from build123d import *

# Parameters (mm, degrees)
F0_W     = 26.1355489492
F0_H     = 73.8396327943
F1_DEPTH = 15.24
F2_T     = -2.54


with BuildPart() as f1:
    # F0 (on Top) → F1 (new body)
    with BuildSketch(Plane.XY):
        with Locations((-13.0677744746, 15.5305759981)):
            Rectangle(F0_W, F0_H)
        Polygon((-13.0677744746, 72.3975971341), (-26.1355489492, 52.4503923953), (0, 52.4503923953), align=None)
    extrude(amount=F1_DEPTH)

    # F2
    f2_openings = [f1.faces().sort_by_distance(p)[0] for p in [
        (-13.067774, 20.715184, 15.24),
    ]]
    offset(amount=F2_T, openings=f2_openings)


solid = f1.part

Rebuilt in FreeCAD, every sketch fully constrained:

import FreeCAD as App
import Part
import Sketcher
Q = App.Units.Quantity


def faces_at(feature, points):
    """Names of the faces that lie closest to the given points."""
    faces = feature.Shape.Faces
    near = lambda p: min(range(len(faces)), key=lambda i: faces[i].distToShape(Part.Vertex(*p))[0])
    return sorted({f"Face{near(p) + 1}" for p in points})

doc = App.newDocument("Part")
body = doc.addObject("PartDesign::Body", "Body")

# Sketch on XY plane
sketch1 = body.newObject("Sketcher::SketchObject", "Sketch")
sketch1.AttachmentSupport = (doc.getObject("XY_Plane"), [""])
sketch1.MapMode = "FlatFace"
sketch1.addGeometry([
    Part.LineSegment(App.Vector(-26, 52, 0), App.Vector(-26, -21, 0)),  # 0
    Part.LineSegment(App.Vector(-26, -21, 0), App.Vector(0, -21, 0)),  # 1
    Part.LineSegment(App.Vector(0, -21, 0), App.Vector(0, 52, 0)),  # 2
    Part.LineSegment(App.Vector(0, 52, 0), App.Vector(-13, 72, 0)),  # 3
    Part.LineSegment(App.Vector(-13, 72, 0), App.Vector(-26, 52, 0)),  # 4
], False)
sketch1.addConstraint([
    Sketcher.Constraint("Coincident", 0, 2, 1, 1),
    Sketcher.Constraint("Coincident", 1, 2, 2, 1),
    Sketcher.Constraint("Coincident", 2, 2, 3, 1),
    Sketcher.Constraint("Coincident", 3, 2, 4, 1),
    Sketcher.Constraint("Coincident", 4, 2, 0, 1),
    Sketcher.Constraint("Vertical", 0),
    Sketcher.Constraint("Horizontal", 1),
    Sketcher.Constraint("Vertical", 2),
    Sketcher.Constraint("PointOnObject", 1, 2, -2),
    Sketcher.Constraint("Horizontal", 2, 2, 4, 2),
    Sketcher.Constraint("Equal", 3, 4),
    Sketcher.Constraint("DistanceX", 1, 1, 1, 2, Q("26.135549 mm")),
    Sketcher.Constraint("DistanceY", 0, 2, 0, 1, Q("73.839633 mm")),
    Sketcher.Constraint("DistanceY", 0, 2, -1, 1, Q("21.38924 mm")),
    Sketcher.Constraint("Distance", 3, Q("23.846545 mm")),
])
pad1 = body.newObject("PartDesign::Pad", "Pad")
pad1.Profile = sketch1
pad1.Length = Q("0.6 in")
doc.recompute()

thickness = body.newObject("PartDesign::Thickness", "Thickness")
thickness.Base = (pad1, faces_at(pad1, [(-13.068, 25.504, 15.24)]))
thickness.Value = Q("0.1 in")
thickness.Reversed = True
thickness.Join = "Arc"

doc.recompute()
